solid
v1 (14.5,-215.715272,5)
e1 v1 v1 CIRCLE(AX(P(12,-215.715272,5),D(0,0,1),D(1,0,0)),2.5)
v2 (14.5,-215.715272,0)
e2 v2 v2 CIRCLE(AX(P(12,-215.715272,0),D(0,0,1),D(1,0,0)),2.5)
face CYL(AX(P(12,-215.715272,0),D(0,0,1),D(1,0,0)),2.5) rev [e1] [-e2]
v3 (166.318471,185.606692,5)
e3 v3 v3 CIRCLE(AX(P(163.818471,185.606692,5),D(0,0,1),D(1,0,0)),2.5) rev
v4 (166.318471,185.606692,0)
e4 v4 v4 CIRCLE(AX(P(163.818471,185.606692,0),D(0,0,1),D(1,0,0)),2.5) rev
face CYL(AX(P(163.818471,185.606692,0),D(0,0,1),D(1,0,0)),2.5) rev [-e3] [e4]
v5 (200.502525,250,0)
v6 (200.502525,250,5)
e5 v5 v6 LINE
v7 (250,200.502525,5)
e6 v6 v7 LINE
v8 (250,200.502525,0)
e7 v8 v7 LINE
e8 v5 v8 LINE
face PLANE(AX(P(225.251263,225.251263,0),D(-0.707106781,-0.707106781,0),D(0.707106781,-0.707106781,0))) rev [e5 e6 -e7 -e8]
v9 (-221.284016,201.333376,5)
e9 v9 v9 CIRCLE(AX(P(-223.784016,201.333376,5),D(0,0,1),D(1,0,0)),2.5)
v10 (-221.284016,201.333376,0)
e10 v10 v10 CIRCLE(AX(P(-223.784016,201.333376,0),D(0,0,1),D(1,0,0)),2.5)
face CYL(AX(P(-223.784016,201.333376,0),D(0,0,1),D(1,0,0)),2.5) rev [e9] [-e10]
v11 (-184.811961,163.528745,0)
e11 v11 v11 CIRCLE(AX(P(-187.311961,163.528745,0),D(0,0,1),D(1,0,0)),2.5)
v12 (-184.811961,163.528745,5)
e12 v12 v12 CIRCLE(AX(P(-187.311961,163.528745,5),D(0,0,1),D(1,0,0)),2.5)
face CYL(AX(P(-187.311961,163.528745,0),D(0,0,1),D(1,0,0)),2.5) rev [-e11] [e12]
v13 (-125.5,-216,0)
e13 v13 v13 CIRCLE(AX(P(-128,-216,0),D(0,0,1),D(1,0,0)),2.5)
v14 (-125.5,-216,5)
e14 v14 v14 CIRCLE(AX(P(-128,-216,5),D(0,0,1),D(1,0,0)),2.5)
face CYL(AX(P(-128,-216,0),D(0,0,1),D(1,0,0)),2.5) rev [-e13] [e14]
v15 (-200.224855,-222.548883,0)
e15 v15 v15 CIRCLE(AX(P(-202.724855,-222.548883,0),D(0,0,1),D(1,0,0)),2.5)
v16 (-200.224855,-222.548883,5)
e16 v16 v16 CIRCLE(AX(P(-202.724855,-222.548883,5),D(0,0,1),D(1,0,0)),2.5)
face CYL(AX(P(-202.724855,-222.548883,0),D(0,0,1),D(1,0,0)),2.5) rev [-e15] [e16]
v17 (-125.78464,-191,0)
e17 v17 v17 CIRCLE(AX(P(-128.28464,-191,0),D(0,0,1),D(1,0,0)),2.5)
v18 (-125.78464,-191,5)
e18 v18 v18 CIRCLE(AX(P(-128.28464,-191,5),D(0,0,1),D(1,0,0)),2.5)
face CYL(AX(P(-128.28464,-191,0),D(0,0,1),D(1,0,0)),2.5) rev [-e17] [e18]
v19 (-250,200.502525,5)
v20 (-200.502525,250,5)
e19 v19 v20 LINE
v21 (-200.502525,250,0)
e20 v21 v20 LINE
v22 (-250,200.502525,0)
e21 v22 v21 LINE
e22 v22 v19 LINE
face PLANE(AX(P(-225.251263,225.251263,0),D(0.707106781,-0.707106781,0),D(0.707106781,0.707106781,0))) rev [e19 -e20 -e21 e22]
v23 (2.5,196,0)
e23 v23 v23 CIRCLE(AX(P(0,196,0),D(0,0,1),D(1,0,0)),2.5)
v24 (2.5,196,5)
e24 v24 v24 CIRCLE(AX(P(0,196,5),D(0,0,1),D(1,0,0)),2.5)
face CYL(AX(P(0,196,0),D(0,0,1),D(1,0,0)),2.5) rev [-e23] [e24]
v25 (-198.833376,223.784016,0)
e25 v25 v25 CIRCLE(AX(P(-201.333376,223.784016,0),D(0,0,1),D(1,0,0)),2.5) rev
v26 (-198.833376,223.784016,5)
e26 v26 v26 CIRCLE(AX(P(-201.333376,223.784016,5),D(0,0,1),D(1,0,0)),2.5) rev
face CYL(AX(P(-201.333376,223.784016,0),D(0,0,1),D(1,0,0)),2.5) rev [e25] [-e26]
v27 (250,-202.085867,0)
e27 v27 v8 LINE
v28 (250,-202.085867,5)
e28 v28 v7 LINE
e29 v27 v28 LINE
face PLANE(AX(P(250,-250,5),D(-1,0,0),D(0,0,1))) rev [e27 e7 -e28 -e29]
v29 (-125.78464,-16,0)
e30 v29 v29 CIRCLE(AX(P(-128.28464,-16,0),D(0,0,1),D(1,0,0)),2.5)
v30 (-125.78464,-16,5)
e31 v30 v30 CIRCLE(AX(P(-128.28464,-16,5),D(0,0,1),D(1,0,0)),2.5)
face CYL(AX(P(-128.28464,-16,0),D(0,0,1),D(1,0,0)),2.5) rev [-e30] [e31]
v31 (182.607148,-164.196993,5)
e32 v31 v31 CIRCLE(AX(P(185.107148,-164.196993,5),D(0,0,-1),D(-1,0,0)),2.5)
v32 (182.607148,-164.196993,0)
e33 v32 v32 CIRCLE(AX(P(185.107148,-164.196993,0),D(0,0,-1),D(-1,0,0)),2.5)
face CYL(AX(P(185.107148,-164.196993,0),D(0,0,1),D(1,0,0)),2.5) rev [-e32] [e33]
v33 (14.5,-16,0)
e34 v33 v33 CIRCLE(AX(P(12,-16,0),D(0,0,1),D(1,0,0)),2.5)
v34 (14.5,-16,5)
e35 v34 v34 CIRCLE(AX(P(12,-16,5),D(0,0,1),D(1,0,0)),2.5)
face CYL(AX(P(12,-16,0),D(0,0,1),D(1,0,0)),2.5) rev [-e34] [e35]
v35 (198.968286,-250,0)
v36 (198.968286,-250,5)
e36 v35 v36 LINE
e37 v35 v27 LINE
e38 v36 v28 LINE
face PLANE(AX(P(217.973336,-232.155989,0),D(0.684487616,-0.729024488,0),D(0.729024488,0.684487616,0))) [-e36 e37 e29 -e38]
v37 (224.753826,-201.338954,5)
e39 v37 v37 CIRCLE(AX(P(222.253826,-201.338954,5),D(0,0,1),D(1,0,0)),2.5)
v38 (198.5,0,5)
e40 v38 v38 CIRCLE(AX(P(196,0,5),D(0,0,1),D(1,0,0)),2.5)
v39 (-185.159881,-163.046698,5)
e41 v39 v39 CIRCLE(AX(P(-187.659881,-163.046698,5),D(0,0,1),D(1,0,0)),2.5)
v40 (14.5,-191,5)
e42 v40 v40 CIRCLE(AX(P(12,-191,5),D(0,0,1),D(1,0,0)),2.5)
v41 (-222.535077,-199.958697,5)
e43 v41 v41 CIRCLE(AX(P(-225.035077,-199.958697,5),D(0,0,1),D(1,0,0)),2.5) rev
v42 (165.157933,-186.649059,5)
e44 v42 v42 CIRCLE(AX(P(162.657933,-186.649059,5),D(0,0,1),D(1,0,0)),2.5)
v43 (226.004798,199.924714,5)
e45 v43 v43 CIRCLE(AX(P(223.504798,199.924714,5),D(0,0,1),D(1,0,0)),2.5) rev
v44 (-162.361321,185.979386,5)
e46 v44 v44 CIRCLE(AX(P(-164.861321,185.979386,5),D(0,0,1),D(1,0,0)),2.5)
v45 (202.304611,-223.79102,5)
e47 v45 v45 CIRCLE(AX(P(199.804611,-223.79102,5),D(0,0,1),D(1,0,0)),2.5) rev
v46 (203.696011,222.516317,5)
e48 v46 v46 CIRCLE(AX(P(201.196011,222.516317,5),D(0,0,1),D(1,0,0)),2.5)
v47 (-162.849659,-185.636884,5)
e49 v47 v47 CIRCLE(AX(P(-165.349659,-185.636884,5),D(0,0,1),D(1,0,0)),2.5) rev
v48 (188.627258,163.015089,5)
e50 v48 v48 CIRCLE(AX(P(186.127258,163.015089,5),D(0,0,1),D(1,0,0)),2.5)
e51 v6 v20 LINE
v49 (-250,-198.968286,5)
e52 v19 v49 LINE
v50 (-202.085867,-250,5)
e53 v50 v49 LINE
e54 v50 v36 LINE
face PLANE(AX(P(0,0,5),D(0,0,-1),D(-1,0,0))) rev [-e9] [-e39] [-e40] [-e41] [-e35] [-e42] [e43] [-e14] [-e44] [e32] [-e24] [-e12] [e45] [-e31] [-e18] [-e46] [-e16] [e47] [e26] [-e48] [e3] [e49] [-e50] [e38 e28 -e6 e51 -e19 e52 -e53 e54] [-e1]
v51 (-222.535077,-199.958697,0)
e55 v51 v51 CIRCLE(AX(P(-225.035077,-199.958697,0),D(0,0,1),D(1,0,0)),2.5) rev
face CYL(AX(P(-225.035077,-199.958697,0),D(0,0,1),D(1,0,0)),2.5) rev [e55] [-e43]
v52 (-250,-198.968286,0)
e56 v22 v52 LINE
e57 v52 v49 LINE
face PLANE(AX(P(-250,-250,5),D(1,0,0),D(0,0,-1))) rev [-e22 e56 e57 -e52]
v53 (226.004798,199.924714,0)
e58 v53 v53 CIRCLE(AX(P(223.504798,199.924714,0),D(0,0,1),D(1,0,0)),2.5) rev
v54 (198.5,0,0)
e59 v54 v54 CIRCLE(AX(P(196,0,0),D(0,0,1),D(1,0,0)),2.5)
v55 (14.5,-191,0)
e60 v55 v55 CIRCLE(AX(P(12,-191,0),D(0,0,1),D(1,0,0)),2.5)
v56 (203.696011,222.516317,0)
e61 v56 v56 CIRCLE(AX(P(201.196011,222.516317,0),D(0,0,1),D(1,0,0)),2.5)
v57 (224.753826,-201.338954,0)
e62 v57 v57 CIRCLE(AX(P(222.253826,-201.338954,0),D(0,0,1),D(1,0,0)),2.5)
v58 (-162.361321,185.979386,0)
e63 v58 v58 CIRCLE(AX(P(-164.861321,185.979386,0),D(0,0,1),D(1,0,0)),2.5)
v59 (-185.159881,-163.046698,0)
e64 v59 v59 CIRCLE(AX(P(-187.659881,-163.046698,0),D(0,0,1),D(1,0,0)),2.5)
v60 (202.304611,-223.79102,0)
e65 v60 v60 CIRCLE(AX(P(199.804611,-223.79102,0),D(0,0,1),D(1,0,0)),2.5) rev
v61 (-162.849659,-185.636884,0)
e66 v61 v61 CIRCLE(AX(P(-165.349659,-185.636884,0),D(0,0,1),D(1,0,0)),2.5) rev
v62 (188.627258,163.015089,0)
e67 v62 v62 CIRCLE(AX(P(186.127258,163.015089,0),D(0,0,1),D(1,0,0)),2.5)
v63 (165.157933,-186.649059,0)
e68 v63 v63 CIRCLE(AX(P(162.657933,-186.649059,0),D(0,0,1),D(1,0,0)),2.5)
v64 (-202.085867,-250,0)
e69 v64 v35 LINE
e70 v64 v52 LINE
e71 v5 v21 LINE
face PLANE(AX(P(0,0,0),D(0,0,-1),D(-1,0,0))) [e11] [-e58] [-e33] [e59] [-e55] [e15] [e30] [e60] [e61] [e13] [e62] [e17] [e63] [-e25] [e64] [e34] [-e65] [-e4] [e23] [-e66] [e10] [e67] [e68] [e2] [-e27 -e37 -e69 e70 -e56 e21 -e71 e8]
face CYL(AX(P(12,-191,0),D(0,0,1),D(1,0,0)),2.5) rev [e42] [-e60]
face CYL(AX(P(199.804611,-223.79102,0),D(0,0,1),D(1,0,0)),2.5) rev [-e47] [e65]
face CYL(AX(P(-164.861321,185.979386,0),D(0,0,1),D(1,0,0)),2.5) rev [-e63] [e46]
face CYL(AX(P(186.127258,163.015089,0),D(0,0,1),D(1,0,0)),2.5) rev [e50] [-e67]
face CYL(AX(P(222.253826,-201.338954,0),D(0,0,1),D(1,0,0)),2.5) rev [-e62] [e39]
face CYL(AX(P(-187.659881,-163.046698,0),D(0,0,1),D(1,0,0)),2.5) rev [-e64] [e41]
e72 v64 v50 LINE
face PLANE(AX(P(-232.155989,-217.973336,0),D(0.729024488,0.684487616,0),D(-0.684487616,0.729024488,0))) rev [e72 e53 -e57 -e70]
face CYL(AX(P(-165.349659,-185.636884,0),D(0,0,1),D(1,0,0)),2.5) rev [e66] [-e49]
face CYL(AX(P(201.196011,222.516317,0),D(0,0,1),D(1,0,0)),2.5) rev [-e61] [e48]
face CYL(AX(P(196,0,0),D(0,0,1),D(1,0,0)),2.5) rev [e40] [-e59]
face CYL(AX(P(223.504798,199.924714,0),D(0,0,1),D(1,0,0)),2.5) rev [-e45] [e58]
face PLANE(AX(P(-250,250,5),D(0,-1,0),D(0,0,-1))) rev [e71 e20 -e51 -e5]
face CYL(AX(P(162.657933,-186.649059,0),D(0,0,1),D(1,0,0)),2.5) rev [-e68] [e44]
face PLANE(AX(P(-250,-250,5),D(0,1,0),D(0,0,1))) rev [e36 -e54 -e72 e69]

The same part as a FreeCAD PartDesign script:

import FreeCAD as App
import Part
import Sketcher
from FreeCAD import Vector


def add_polygon(sketch, points):
    """Adds a closed chain of lines whose ends are joined by coincident constraints."""
    first, n = sketch.GeometryCount, len(points)
    for a, b in zip(points, points[1:] + points[:1]):
        sketch.addGeometry(Part.LineSegment(App.Vector(*a, 0), App.Vector(*b, 0)), False)
    for i in range(n):
        sketch.addConstraint(Sketcher.Constraint("Coincident", first + i, 2, first + (i + 1) % n, 1))

doc = App.newDocument("Part")
body = doc.addObject("PartDesign::Body", "Body")

# Sketch on XY plane
sketch1 = body.newObject("Sketcher::SketchObject", "Sketch")
sketch1.AttachmentSupport = (doc.getObject("XY_Plane"), [""])
sketch1.MapMode = "FlatFace"
add_polygon(sketch1, [(-250, 250), (-250, -250), (250, -250), (250, 250)])  # lines 0-3
sketch1.addConstraint([
    Sketcher.Constraint("Vertical", 0),
    Sketcher.Constraint("Horizontal", 1),
    Sketcher.Constraint("Vertical", 2),
    Sketcher.Constraint("Horizontal", 3),
    Sketcher.Constraint("Symmetric", 0, 2, 2, 2, -1, 1),
    Sketcher.Constraint("Equal", 3, 0),
    Sketcher.Constraint("DistanceX", 1, 1, 1, 2, 500.0),
])
pad1 = body.newObject("PartDesign::Pad", "Pad")
pad1.Profile = sketch1
pad1.Length = 5

# Sketch on XY plane
sketch2 = body.newObject("Sketcher::SketchObject", "Sketch001")
sketch2.AttachmentSupport = (doc.getObject("XY_Plane"), [""])
sketch2.MapMode = "FlatFace"
sketch2.AttachmentOffset = App.Placement(Vector(0, 0, 5), App.Rotation())
add_polygon(sketch2, [(-250, 250), (-250, 201), (-201, 250)])  # lines 0-2
add_polygon(sketch2, [(250, 250), (201, 250), (250, 201)])  # lines 3-5
add_polygon(sketch2, [(250, -202), (199, -250), (250, -250)])  # lines 6-8
add_polygon(sketch2, [(-202, -250), (-250, -199), (-250, -250)])  # lines 9-11
sketch2.addConstraint([
    Sketcher.Constraint("Vertical", 0),
    Sketcher.Constraint("Horizontal", 2),
    Sketcher.Constraint("Horizontal", 3),
    Sketcher.Constraint("Vertical", 5),
    Sketcher.Constraint("Horizontal", 7),
    Sketcher.Constraint("Vertical", 8),
    Sketcher.Constraint("Vertical", 10),
    Sketcher.Constraint("Horizontal", 11),
    Sketcher.Constraint("Symmetric", 2, 2, 7, 2, -1, 1),
    Sketcher.Constraint("Symmetric", 5, 2, 10, 2, -1, 1),
    Sketcher.Constraint("Symmetric", 1, 2, 3, 2, -2),
    Sketcher.Constraint("Symmetric", 0, 2, 4, 2, -2),
    Sketcher.Constraint("Perpendicular", 1, 4),
    Sketcher.Constraint("Perpendicular", 6, 9),
    Sketcher.Constraint("Equal", 11, 8),
    Sketcher.Constraint("Equal", 4, 6),
    Sketcher.Constraint("Distance", 1, 70.0),
    Sketcher.Constraint("DistanceX", 0, 2, -1, 1, 250.0),
    Sketcher.Constraint("DistanceY", -1, 1, 1, 2, 250.0),
    Sketcher.Constraint("DistanceX", 7, 1, 7, 2, 51.031714),
])
pocket1 = body.newObject("PartDesign::Pocket", "Pocket")
pocket1.Profile = sketch2
pocket1.Length = 5

# Sketch on XY plane
sketch3 = body.newObject("Sketcher::SketchObject", "Sketch002")
sketch3.AttachmentSupport = (doc.getObject("XY_Plane"), [""])
sketch3.MapMode = "FlatFace"
sketch3.AttachmentOffset = App.Placement(Vector(0, 0, 5), App.Rotation())
sketch3.addGeometry([
    Part.Circle(Vector(-223.8, 201.3, 0), Vector(0, 0, 1), 2.5),  # 0
    Part.Circle(Vector(-201.3, 223.8, 0), Vector(0, 0, 1), 2.5),  # 1
    Part.Circle(Vector(-187.3, 163.5, 0), Vector(0, 0, 1), 2.5),  # 2
    Part.Circle(Vector(201.2, 222.5, 0), Vector(0, 0, 1), 2.5),  # 3
    Part.Circle(Vector(223.5, 199.9, 0), Vector(0, 0, 1), 2.5),  # 4
    Part.Circle(Vector(163.8, 185.6, 0), Vector(0, 0, 1), 2.5),  # 5
    Part.Circle(Vector(199.8, -223.8, 0), Vector(0, 0, 1), 2.5),  # 6
    Part.Circle(Vector(222.3, -201.3, 0), Vector(0, 0, 1), 2.5),  # 7
    Part.Circle(Vector(-187.7, -163, 0), Vector(0, 0, 1), 2.5),  # 8
    Part.Circle(Vector(-165.3, -185.6, 0), Vector(0, 0, 1), 2.5),  # 9
    Part.Circle(Vector(-225, -200, 0), Vector(0, 0, 1), 2.5),  # 10
    Part.Circle(Vector(-202.7, -222.5, 0), Vector(0, 0, 1), 2.5),  # 11
    Part.Circle(Vector(-164.9, 186, 0), Vector(0, 0, 1), 2.5),  # 12
    Part.Circle(Vector(186.1, 163, 0), Vector(0, 0, 1), 2.5),  # 13
    Part.Circle(Vector(185.1, -164.2, 0), Vector(0, 0, 1), 2.5),  # 14
    Part.Circle(Vector(162.7, -186.6, 0), Vector(0, 0, 1), 2.5),  # 15
], False)
sketch3.addConstraint([
    Sketcher.Constraint("Equal", 0, 1),
    Sketcher.Constraint("Equal", 1, 2),
    Sketcher.Constraint("Equal", 2, 3),
    Sketcher.Constraint("Equal", 3, 4),
    Sketcher.Constraint("Equal", 4, 5),
    Sketcher.Constraint("Equal", 5, 6),
    Sketcher.Constraint("Equal", 6, 7),
    Sketcher.Constraint("Equal", 7, 8),
    Sketcher.Constraint("Equal", 8, 9),
    Sketcher.Constraint("Equal", 9, 10),
    Sketcher.Constraint("Equal", 10, 11),
    Sketcher.Constraint("Equal", 11, 12),
    Sketcher.Constraint("Equal", 12, 13),
    Sketcher.Constraint("Equal", 13, 14),
    Sketcher.Constraint("Equal", 14, 15),
    Sketcher.Constraint("Diameter", 0, 5.0),
    Sketcher.Constraint("DistanceY", 10, 3, 8, 3, 36.911999),
    Sketcher.Constraint("DistanceY", 11, 3, 9, 3, 36.911999),
    Sketcher.Constraint("DistanceY", 8, 3, -1, 1, 163.046698),
    Sketcher.Constraint("DistanceY", 3, 3, 1, 3, 1.2677),
    Sketcher.Constraint("DistanceX", 6, 3, 3, 3, 1.391399),
    Sketcher.Constraint("DistanceY", 7, 3, 2, 3, 364.867699),
    Sketcher.Constraint("DistanceX", 2, 3, 9, 3, 21.962302),
    Sketcher.Constraint("DistanceX", 10, 3, 1, 3, 23.701701),
    Sketcher.Constraint("DistanceX", 2, 3, -1, 1, 187.311961),
    Sketcher.Constraint("DistanceX", -1, 1, 3, 3, 201.196011),
    Sketcher.Constraint("DistanceX", -1, 1, 5, 3, 163.818471),
    Sketcher.Constraint("DistanceY", -1, 1, 5, 3, 185.606692),
    Sketcher.Constraint("DistanceY", 6, 3, -1, 1, 223.79102),
    Sketcher.Constraint("DistanceX", 8, 3, -1, 1, 187.659881),
    Sketcher.Constraint("DistanceX", 12, 3, -1, 1, 164.861321),
    Sketcher.Constraint("DistanceX", -1, 1, 13, 3, 186.127258),
    Sketcher.Constraint("DistanceY", -1, 1, 13, 3, 163.015089),
    Sketcher.Constraint("DistanceY", 15, 3, -1, 1, 186.649059),
    Sketcher.Constraint("DistanceX", 0, 3, 1, 3, 22.45064),
    Sketcher.Constraint("DistanceY", 0, 3, 1, 3, 22.45064),
    Sketcher.Constraint("DistanceY", 2, 3, 0, 3, 37.804631),
    Sketcher.Constraint("DistanceX", 2, 3, 4, 3, 410.816759),
    Sketcher.Constraint("DistanceY", 2, 3, 4, 3, 36.395969),
    Sketcher.Constraint("DistanceX", 7, 3, 4, 3, 1.250972),
    Sketcher.Constraint("DistanceY", 9, 3, 2, 3, 349.16563),
    Sketcher.Constraint("DistanceX", 10, 3, 11, 3, 22.310222),
    Sketcher.Constraint("DistanceY", 2, 3, 12, 3, 22.45064),
    Sketcher.Constraint("DistanceX", 14, 3, 7, 3, 37.146678),
    Sketcher.Constraint("DistanceY", 7, 3, 14, 3, 37.14196),
    Sketcher.Constraint("DistanceX", 15, 3, 6, 3, 37.146678),
    Sketcher.Constraint("DistanceX", 0, 3, -1, 1, 223.784016),
    Sketcher.Constraint("DistanceY", -1, 1, 0, 3, 201.333376),
])
pocket2 = body.newObject("PartDesign::Pocket", "Pocket001")
pocket2.Profile = sketch3
pocket2.Type = "ThroughAll"

# Sketch on XY plane
sketch4 = body.newObject("Sketcher::SketchObject", "Sketch003")
sketch4.AttachmentSupport = (doc.getObject("XY_Plane"), [""])
sketch4.MapMode = "FlatFace"
sketch4.AttachmentOffset = App.Placement(Vector(0, 0, 5), App.Rotation())
sketch4.addGeometry([
    Part.Circle(Vector(-128, -216, 0), Vector(0, 0, 1), 2.5),
    Part.Circle(Vector(-128.3, -191, 0), Vector(0, 0, 1), 2.5),
    Part.Circle(Vector(-128.3, -16, 0), Vector(0, 0, 1), 2.5),
], False)
sketch4.addConstraint([
    Sketcher.Constraint("Equal", 0, 1),
    Sketcher.Constraint("Equal", 1, 2),
    Sketcher.Constraint("Vertical", 1, 3, 2, 3),
    Sketcher.Constraint("Diameter", 0, 5.0),
    Sketcher.Constraint("DistanceX", 0, 3, -1, 1, 128.0),
    Sketcher.Constraint("DistanceY", 0, 3, -1, 1, 216.0),
    Sketcher.Constraint("DistanceY", 1, 3, -1, 1, 191.0),
    Sketcher.Constraint("DistanceY", 2, 3, -1, 1, 16.0),
    Sketcher.Constraint("DistanceX", 1, 3, -1, 1, 128.28464),
])
pocket3 = body.newObject("PartDesign::Pocket", "Pocket002")
pocket3.Profile = sketch4
pocket3.Type = "ThroughAll"

# Sketch on XY plane
sketch5 = body.newObject("Sketcher::SketchObject", "Sketch004")
sketch5.AttachmentSupport = (doc.getObject("XY_Plane"), [""])
sketch5.MapMode = "FlatFace"
sketch5.AttachmentOffset = App.Placement(Vector(0, 0, 5), App.Rotation())
sketch5.addGeometry([
    Part.Circle(Vector(12, -215.7, 0), Vector(0, 0, 1), 2.5),
    Part.Circle(Vector(12, -191, 0), Vector(0, 0, 1), 2.5),
    Part.Circle(Vector(12, -16, 0), Vector(0, 0, 1), 2.5),
], False)
sketch5.addConstraint([
    Sketcher.Constraint("Equal", 0, 1),
    Sketcher.Constraint("Equal", 1, 2),
    Sketcher.Constraint("Vertical", 0, 3, 1, 3),
    Sketcher.Constraint("Vertical", 1, 3, 2, 3),
    Sketcher.Constraint("Diameter", 0, 5.0),
    Sketcher.Constraint("DistanceX", -1, 1, 0, 3, 12.0),
    Sketcher.Constraint("DistanceY", 1, 3, -1, 1, 191.0),
    Sketcher.Constraint("DistanceY", 2, 3, -1, 1, 16.0),
    Sketcher.Constraint("DistanceY", 0, 3, -1, 1, 215.715272),
])
pocket4 = body.newObject("PartDesign::Pocket", "Pocket003")
pocket4.Profile = sketch5
pocket4.Type = "ThroughAll"

# Sketch on XY plane
sketch6 = body.newObject("Sketcher::SketchObject", "Sketch005")
sketch6.AttachmentSupport = (doc.getObject("XY_Plane"), [""])
sketch6.MapMode = "FlatFace"
sketch6.AttachmentOffset = App.Placement(Vector(0, 0, 5), App.Rotation())
sketch6.addGeometry([
    Part.Circle(Vector(0, 196, 0), Vector(0, 0, 1), 2.5),
    Part.Circle(Vector(196, 0, 0), Vector(0, 0, 1), 2.5),
], False)
sketch6.addConstraint([
    Sketcher.Constraint("Equal", 0, 1),
    Sketcher.Constraint("PointOnObject", 0, 3, -2),
    Sketcher.Constraint("PointOnObject", 1, 3, -1),
    Sketcher.Constraint("Diameter", 0, 5.0),
    Sketcher.Constraint("DistanceY", -1, 1, 0, 3, 196.0),
    Sketcher.Constraint("DistanceX", -1, 1, 1, 3, 196.0),
])
pocket5 = body.newObject("PartDesign::Pocket", "Pocket004")
pocket5.Profile = sketch6
pocket5.Type = "ThroughAll"

doc.recompute()
